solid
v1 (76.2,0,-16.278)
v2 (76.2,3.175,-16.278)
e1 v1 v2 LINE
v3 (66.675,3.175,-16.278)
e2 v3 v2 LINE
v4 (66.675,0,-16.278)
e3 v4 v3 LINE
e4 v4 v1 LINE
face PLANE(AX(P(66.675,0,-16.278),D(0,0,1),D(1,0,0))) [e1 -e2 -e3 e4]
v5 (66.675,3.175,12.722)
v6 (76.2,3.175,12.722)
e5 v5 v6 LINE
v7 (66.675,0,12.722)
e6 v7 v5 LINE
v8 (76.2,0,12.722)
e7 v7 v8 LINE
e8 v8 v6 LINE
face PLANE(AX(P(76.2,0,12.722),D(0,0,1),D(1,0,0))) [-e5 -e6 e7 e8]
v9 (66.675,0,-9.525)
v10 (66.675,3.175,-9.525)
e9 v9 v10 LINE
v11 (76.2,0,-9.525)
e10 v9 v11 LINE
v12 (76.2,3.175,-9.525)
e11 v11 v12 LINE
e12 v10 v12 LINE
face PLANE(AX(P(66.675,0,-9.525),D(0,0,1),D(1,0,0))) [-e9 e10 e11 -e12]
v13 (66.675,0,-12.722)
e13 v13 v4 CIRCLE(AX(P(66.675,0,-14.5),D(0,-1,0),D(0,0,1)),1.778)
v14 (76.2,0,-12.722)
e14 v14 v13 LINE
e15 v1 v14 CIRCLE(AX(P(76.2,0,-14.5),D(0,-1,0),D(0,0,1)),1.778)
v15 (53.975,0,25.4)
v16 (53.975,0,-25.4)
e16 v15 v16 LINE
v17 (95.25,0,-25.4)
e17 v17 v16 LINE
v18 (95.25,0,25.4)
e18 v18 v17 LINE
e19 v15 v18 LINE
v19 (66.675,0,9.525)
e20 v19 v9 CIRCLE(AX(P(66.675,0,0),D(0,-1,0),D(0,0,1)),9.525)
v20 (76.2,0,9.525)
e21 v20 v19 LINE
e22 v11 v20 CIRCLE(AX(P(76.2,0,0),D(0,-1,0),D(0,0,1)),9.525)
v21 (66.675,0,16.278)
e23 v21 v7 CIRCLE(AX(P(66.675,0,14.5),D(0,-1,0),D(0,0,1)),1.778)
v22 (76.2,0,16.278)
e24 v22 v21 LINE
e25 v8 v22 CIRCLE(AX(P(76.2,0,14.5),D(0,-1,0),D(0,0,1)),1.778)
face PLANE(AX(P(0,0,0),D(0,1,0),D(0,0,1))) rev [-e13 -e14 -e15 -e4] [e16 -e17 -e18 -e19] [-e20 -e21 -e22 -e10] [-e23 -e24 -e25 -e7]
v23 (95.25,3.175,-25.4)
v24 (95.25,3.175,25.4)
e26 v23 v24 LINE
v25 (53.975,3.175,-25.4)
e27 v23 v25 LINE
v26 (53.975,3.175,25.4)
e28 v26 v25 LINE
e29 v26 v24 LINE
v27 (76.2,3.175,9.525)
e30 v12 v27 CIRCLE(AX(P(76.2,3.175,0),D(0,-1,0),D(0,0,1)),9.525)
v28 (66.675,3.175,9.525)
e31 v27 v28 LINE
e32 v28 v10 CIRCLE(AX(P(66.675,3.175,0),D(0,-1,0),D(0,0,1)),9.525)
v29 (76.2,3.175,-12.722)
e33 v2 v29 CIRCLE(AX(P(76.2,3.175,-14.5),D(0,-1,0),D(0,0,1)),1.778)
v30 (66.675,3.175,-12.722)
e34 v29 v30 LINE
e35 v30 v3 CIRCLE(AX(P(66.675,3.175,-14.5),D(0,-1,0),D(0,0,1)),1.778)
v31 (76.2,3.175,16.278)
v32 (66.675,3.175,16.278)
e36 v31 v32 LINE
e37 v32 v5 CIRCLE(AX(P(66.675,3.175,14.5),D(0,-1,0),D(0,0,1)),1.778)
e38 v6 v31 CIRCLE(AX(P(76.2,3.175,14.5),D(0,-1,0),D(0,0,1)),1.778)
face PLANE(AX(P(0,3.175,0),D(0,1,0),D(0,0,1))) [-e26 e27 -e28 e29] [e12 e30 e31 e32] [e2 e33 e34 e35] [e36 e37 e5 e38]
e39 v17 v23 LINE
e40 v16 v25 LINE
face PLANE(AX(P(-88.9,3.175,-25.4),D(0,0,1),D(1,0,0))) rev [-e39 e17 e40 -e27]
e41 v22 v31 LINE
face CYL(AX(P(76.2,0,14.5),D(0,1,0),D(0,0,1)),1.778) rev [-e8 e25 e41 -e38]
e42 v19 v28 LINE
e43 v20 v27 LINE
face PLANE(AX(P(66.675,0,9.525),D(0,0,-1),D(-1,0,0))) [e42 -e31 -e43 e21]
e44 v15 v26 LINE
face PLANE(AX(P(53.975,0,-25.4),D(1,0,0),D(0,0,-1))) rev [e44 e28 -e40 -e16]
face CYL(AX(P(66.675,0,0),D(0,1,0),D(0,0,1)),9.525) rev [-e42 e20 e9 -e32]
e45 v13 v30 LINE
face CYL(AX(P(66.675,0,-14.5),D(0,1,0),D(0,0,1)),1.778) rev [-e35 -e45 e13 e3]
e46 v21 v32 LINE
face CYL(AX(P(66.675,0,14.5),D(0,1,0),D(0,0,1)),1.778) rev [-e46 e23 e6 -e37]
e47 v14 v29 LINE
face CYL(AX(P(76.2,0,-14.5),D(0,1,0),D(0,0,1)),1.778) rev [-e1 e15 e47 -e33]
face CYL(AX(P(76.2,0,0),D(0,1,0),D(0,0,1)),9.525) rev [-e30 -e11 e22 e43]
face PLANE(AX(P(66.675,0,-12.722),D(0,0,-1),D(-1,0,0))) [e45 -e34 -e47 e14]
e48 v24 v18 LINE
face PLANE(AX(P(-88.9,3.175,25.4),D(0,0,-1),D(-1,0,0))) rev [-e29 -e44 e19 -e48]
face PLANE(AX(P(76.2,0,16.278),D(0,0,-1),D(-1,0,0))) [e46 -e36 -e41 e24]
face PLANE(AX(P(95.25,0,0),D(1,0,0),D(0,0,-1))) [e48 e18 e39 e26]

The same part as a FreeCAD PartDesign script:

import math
import FreeCAD as App
import Part
import Sketcher
Q = App.Units.Quantity


def add_polygon(sketch, points):
    """Adds a closed chain of lines whose ends are joined by coincident constraints."""
    first, n = sketch.GeometryCount, len(points)
    for a, b in zip(points, points[1:] + points[:1]):
        sketch.addGeometry(Part.LineSegment(App.Vector(*a, 0), App.Vector(*b, 0)), False)
    for i in range(n):
        sketch.addConstraint(Sketcher.Constraint("Coincident", first + i, 2, first + (i + 1) % n, 1))

doc = App.newDocument("Part")
params = doc.addObject("Spreadsheet::Sheet", "Params")
for row, (alias, value) in enumerate([
    ("sketch1_width", "7 in"),
    ("sketch1_height", "2 in"),
    ("pad1_length", "0.125 in"),
    ("sketch2_radius", "0.07 in"),
    ("sketch2_radius2", "0.375 in"),
    ("sketch2_width", "0.375 in"),
    ("pocket1_length", "0.125 in"),
    ("sketch3_height", "2 in"),
    ("sketch3_width", "5.625 in"),
    ("pocket2_length", "0.125 in"),
    ("sketch4_height", "2 in"),
    ("sketch4_width", "0.125 in"),
    ("pad2_length", "0.25 in"),
], start=1):
    params.set(f"A{row}", alias)
    params.set(f"B{row}", "=" + value)
    params.setAlias(f"B{row}", alias)

body = doc.addObject("PartDesign::Body", "Body")

# Sketch on XZ plane
sketch1 = body.newObject("Sketcher::SketchObject", "Sketch")
sketch1.AttachmentSupport = (doc.getObject("XZ_Plane"), [""])
sketch1.MapMode = "FlatFace"
add_polygon(sketch1, [(-89, -25), (-89, 25), (89, 25), (89, -25)])  # lines 0-3
sketch1.addConstraint(Sketcher.Constraint("Vertical", 0))
sketch1.addConstraint(Sketcher.Constraint("Horizontal", 1))
sketch1.addConstraint(Sketcher.Constraint("Vertical", 2))
sketch1.addConstraint(Sketcher.Constraint("Horizontal", 3))
sketch1.addConstraint(Sketcher.Constraint("Symmetric", 0, 2, 2, 2, -1, 1))
sketch1.addConstraint(Sketcher.Constraint("DistanceX", 1, 1, 1, 2, Q("7 in")))
sketch1.addConstraint(Sketcher.Constraint("DistanceY", 0, 1, 0, 2, Q("2 in")))
sketch1.setExpression("Constraints[9]", "Params.sketch1_width")
sketch1.setExpression("Constraints[10]", "Params.sketch1_height")
pad1 = body.newObject("PartDesign::Pad", "Pad")
pad1.Profile = sketch1
pad1.setExpression("Length", "Params.pad1_length")
pad1.Reversed = True

# Sketch on XZ plane
sketch2 = body.newObject("Sketcher::SketchObject", "Sketch001")
sketch2.AttachmentSupport = (doc.getObject("XZ_Plane"), [""])
sketch2.MapMode = "FlatFace"
sketch2.AttachmentOffset = App.Placement(App.Vector(0, 0, -0.125 * 25.4), App.Rotation())
sketch2.addGeometry(Part.LineSegment(App.Vector(-66.7, 12.7, 0), App.Vector(-76.2, 12.7, 0)), False)
sketch2.addGeometry(Part.ArcOfCircle(Part.Circle(App.Vector(-76.2, 14.5, 0), App.Vector(0, 0, 1), 1.8), math.radians(90), math.radians(270)), False)
sketch2.addGeometry(Part.LineSegment(App.Vector(-76.2, 16.3, 0), App.Vector(-66.7, 16.3, 0)), False)
sketch2.addGeometry(Part.ArcOfCircle(Part.Circle(App.Vector(-66.7, 14.5, 0), App.Vector(0, 0, 1), 1.8), math.radians(-90), math.radians(90)), False)
sketch2.addGeometry(Part.LineSegment(App.Vector(-76.2, -12.7, 0), App.Vector(-66.7, -12.7, 0)), False)
sketch2.addGeometry(Part.ArcOfCircle(Part.Circle(App.Vector(-66.7, -14.5, 0), App.Vector(0, 0, 1), 1.8), math.radians(-90), math.radians(90)), False)
sketch2.addGeometry(Part.LineSegment(App.Vector(-66.7, -16.3, 0), App.Vector(-76.2, -16.3, 0)), False)
sketch2.addGeometry(Part.ArcOfCircle(Part.Circle(App.Vector(-76.2, -14.5, 0), App.Vector(0, 0, 1), 1.8), math.radians(90), math.radians(270)), False)
sketch2.addGeometry(Part.LineSegment(App.Vector(-76.2, 9.5, 0), App.Vector(-66.7, 9.5, 0)), False)
sketch2.addGeometry(Part.ArcOfCircle(Part.Circle(App.Vector(-66.7, 0, 0), App.Vector(0, 0, 1), 9.5), math.radians(-90), math.radians(90)), False)
sketch2.addGeometry(Part.LineSegment(App.Vector(-66.7, -9.5, 0), App.Vector(-76.2, -9.5, 0)), False)
sketch2.addGeometry(Part.ArcOfCircle(Part.Circle(App.Vector(-76.2, 0, 0), App.Vector(0, 0, 1), 9.5), math.radians(90), math.radians(270)), False)
sketch2.addConstraint(Sketcher.Constraint("Tangent", 0, 2, 1, 2))
sketch2.addConstraint(Sketcher.Constraint("Tangent", 1, 1, 2, 1))
sketch2.addConstraint(Sketcher.Constraint("Tangent", 2, 2, 3, 2))
sketch2.addConstraint(Sketcher.Constraint("Tangent", 3, 1, 0, 1))
sketch2.addConstraint(Sketcher.Constraint("Tangent", 4, 2, 5, 2))
sketch2.addConstraint(Sketcher.Constraint("Tangent", 5, 1, 6, 1))
sketch2.addConstraint(Sketcher.Constraint("Tangent", 6, 2, 7, 2))
sketch2.addConstraint(Sketcher.Constraint("Tangent", 7, 1, 4, 1))
sketch2.addConstraint(Sketcher.Constraint("Tangent", 8, 2, 9, 2))
sketch2.addConstraint(Sketcher.Constraint("Tangent", 9, 1, 10, 1))
sketch2.addConstraint(Sketcher.Constraint("Tangent", 10, 2, 11, 2))
sketch2.addConstraint(Sketcher.Constraint("Tangent", 11, 1, 8, 1))
sketch2.addConstraint(Sketcher.Constraint("Horizontal", 0))
sketch2.addConstraint(Sketcher.Constraint("Horizontal", 2))
sketch2.addConstraint(Sketcher.Constraint("Horizontal", 4))
sketch2.addConstraint(Sketcher.Constraint("Horizontal", 6))
sketch2.addConstraint(Sketcher.Constraint("Horizontal", 8))
sketch2.addConstraint(Sketcher.Constraint("Horizontal", 10))
sketch2.addConstraint(Sketcher.Constraint("Equal", 3, 5))
sketch2.addConstraint(Sketcher.Constraint("Symmetric", 3, 3, 5, 3, -1))
sketch2.addConstraint(Sketcher.Constraint("PointOnObject", 9, 3, -1))
sketch2.addConstraint(Sketcher.Constraint("Vertical", 1, 3, 7, 3))
sketch2.addConstraint(Sketcher.Constraint("Vertical", 5, 3, 9, 3))
sketch2.addConstraint(Sketcher.Constraint("Vertical", 7, 3, 11, 3))
sketch2.addConstraint(Sketcher.Constraint("Radius", 1, Q("0.07 in")))
sketch2.addConstraint(Sketcher.Constraint("DistanceX", 1, 3, -1, 1, Q("3 in")))
sketch2.addConstraint(Sketcher.Constraint("Radius", 9, Q("0.375 in")))
sketch2.addConstraint(Sketcher.Constraint("DistanceX", 0, 2, 0, 1, Q("0.375 in")))
sketch2.addConstraint(Sketcher.Constraint("DistanceY", -1, 1, 1, 3, 14.5))
sketch2.setExpression("Constraints[24]", "Params.sketch2_radius")
sketch2.setExpression("Constraints[26]", "Params.sketch2_radius2")
sketch2.setExpression("Constraints[27]", "Params.sketch2_width")
pocket1 = body.newObject("PartDesign::Pocket", "Pocket")
pocket1.Profile = sketch2
pocket1.setExpression("Length", "Params.pocket1_length")
pocket1.Reversed = True
doc.recompute()

mirrored = body.newObject("PartDesign::Mirrored", "Mirrored")
mirrored.Originals = [pocket1]
mirrored.MirrorPlane = (doc.getObject("YZ_Plane"), [""])
body.Tip = mirrored

# Sketch on XZ plane
sketch3 = body.newObject("Sketcher::SketchObject", "Sketch002")
sketch3.AttachmentSupport = (doc.getObject("XZ_Plane"), [""])
sketch3.MapMode = "FlatFace"
sketch3.AttachmentOffset = App.Placement(App.Vector(0, 0, -0.125 * 25.4), App.Rotation())
add_polygon(sketch3, [(-89, -25), (-89, 25), (54, 25), (54, -25)])  # lines 0-3
sketch3.addConstraint(Sketcher.Constraint("Vertical", 0))
sketch3.addConstraint(Sketcher.Constraint("Horizontal", 1))
sketch3.addConstraint(Sketcher.Constraint("Vertical", 2))
sketch3.addConstraint(Sketcher.Constraint("Horizontal", 3))
sketch3.addConstraint(Sketcher.Constraint("DistanceY", 0, 1, 0, 2, Q("2 in")))
sketch3.addConstraint(Sketcher.Constraint("DistanceY", -1, 1, 0, 2, Q("1 in")))
sketch3.addConstraint(Sketcher.Constraint("DistanceX", 0, 2, -1, 1, Q("3.5 in")))
sketch3.addConstraint(Sketcher.Constraint("DistanceX", 1, 1, 1, 2, Q("5.625 in")))
sketch3.setExpression("Constraints[8]", "Params.sketch3_height")
sketch3.setExpression("Constraints[11]", "Params.sketch3_width")
pocket2 = body.newObject("PartDesign::Pocket", "Pocket001")
pocket2.Profile = sketch3
pocket2.setExpression("Length", "Params.pocket2_length")
pocket2.Reversed = True

# Sketch on YZ plane
sketch4 = body.newObject("Sketcher::SketchObject", "Sketch003")
sketch4.AttachmentSupport = (doc.getObject("YZ_Plane"), [""])
sketch4.MapMode = "FlatFace"
sketch4.AttachmentOffset = App.Placement(App.Vector(0, 0, 3.5 * 25.4), App.Rotation())
add_polygon(sketch4, [(3.2, 25.4), (0, 25.4), (0, -25.4), (3.2, -25.4)])  # lines 0-3
sketch4.addConstraint(Sketcher.Constraint("Horizontal", 0))
sketch4.addConstraint(Sketcher.Constraint("Vertical", 1))
sketch4.addConstraint(Sketcher.Constraint("Horizontal", 2))
sketch4.addConstraint(Sketcher.Constraint("Vertical", 3))
sketch4.addConstraint(Sketcher.Constraint("Symmetric", 0, 2, 1, 2, -1, 1))
sketch4.addConstraint(Sketcher.Constraint("DistanceY", 1, 2, 1, 1, Q("2 in")))
sketch4.addConstraint(Sketcher.Constraint("DistanceX", 0, 2, 0, 1, Q("0.125 in")))
sketch4.setExpression("Constraints[9]", "Params.sketch4_height")
sketch4.setExpression("Constraints[10]", "Params.sketch4_width")
pad2 = body.newObject("PartDesign::Pad", "Pad001")
pad2.Profile = sketch4
pad2.setExpression("Length", "Params.pad2_length")

doc.recompute()
